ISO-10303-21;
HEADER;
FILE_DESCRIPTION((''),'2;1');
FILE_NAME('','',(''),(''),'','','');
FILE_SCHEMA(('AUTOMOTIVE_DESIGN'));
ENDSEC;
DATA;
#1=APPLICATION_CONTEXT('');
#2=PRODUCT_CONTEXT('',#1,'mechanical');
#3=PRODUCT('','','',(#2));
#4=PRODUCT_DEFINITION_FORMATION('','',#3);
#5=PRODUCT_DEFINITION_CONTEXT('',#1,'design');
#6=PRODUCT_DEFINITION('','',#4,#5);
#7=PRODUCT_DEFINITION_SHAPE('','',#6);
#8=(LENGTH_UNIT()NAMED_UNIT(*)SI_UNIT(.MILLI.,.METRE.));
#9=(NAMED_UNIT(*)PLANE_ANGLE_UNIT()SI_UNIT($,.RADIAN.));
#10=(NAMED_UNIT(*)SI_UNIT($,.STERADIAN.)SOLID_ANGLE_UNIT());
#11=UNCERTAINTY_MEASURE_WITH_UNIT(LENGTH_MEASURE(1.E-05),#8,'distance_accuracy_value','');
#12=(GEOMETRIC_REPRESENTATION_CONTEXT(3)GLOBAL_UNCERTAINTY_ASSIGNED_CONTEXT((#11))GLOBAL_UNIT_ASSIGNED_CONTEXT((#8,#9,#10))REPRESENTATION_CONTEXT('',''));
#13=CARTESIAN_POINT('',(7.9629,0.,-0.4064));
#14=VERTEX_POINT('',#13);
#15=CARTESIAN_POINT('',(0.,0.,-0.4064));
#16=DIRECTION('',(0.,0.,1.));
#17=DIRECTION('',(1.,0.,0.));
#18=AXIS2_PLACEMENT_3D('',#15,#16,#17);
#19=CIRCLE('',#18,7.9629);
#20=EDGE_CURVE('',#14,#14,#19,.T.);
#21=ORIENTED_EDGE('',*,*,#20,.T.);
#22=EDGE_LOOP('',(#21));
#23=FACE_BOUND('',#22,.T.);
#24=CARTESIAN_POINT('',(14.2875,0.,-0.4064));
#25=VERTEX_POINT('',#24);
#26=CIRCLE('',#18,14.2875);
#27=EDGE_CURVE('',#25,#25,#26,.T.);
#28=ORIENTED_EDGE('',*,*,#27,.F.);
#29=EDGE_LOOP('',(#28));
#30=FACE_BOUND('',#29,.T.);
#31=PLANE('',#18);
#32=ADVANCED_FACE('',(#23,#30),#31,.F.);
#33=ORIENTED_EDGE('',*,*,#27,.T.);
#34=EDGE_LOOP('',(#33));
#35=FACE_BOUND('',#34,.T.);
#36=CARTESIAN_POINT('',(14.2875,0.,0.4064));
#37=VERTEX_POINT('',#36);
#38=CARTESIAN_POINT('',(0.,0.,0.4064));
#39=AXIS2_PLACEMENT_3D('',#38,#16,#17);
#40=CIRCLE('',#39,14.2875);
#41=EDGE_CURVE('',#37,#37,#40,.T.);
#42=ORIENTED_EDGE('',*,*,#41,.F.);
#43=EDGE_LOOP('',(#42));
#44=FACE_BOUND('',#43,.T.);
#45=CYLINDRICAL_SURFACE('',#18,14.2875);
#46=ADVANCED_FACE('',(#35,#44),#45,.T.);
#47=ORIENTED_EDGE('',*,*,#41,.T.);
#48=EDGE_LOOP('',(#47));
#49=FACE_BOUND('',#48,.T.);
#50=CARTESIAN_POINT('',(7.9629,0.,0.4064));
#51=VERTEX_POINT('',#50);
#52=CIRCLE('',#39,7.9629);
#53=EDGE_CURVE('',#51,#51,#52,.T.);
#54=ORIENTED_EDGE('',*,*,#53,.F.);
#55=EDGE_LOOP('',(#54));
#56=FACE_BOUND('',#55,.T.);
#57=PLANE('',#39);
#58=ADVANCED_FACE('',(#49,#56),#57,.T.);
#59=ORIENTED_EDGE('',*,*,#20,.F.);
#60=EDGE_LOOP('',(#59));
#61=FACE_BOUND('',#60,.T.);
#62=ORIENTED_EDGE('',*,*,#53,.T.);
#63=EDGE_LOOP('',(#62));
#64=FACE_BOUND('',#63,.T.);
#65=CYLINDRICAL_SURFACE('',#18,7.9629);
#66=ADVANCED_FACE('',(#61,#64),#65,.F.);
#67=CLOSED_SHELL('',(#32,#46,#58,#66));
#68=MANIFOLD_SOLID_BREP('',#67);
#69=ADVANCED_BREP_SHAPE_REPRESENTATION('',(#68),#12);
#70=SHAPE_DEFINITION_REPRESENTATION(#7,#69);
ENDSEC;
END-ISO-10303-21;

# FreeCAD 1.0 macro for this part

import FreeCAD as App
import Part
import Sketcher

V = App.Vector
Q = App.Units.Quantity

doc = App.newDocument("Part")
params = doc.addObject("Spreadsheet::Sheet", "Params")
for row, (alias, value) in enumerate([
    ("sketch1_diameter", "1.125 in"),
    ("sketch1_diameter2", "0.627 in"),
    ("pad1_length", "0.016 in"),
    ("pad1_length2", "0.016 in"),
], start=1):
    params.set(f"A{row}", alias)
    params.set(f"B{row}", "=" + value)
    params.setAlias(f"B{row}", alias)

body = doc.addObject("PartDesign::Body", "Body")

# Sketch on XY plane
sketch1 = doc.addObject("Sketcher::SketchObject", "Sketch")
body.addObject(sketch1)
sketch1.AttachmentSupport = (doc.XY_Plane, [""])
sketch1.MapMode = "FlatFace"
sketch1.addGeometry([
    Part.Circle(V(0, 0, 0), V(0, 0, 1), 14),
    Part.Circle(V(0, 0, 0), V(0, 0, 1), 8),
], False)
sketch1.addConstraint([
    Sketcher.Constraint("Coincident", 0, 3, -1, 1),
    Sketcher.Constraint("Coincident", 1, 3, -1, 1),
    Sketcher.Constraint("Diameter", 0, Q("1.125 in")),
    Sketcher.Constraint("Diameter", 1, Q("0.627 in")),
])
sketch1.setExpression("Constraints[2]", "Params.sketch1_diameter")
sketch1.setExpression("Constraints[3]", "Params.sketch1_diameter2")
pad1 = doc.addObject("PartDesign::Pad", "Pad")
body.addObject(pad1)
pad1.Profile = sketch1
pad1.Type = "TwoLengths"
pad1.setExpression("Length", "Params.pad1_length")
pad1.setExpression("Length2", "Params.pad1_length2")

doc.recompute()
